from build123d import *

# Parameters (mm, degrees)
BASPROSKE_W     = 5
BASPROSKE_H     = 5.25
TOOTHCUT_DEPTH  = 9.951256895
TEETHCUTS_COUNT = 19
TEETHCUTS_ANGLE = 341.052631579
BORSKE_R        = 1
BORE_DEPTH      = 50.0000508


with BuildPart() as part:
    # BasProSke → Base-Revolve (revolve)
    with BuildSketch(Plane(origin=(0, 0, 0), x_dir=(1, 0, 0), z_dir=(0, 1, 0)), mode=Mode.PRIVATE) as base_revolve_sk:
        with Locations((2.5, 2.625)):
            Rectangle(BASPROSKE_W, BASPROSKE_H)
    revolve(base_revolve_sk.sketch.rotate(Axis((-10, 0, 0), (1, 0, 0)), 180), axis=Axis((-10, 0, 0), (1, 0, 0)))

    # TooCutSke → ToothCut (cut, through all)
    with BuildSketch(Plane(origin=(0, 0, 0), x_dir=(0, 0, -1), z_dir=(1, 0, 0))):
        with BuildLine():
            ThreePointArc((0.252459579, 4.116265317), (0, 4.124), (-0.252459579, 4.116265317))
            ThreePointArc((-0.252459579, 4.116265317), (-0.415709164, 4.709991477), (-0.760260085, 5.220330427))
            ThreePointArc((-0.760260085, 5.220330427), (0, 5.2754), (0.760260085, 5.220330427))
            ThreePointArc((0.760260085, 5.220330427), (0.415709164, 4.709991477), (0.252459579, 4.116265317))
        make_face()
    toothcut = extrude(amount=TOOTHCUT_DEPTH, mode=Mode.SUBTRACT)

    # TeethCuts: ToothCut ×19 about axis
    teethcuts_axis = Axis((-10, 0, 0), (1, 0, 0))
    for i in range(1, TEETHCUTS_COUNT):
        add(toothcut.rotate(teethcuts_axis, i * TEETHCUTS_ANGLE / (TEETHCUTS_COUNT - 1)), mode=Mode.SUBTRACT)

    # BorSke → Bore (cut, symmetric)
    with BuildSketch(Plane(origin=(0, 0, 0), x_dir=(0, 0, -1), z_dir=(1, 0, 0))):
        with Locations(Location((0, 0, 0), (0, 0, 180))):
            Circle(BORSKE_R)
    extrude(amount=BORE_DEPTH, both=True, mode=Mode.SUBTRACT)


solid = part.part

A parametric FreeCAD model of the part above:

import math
import FreeCAD as App
import Part
import Sketcher
from FreeCAD import Vector


def add_polygon(sketch, points):
    """Adds a closed chain of lines whose ends are joined by coincident constraints."""
    first, n = sketch.GeometryCount, len(points)
    for a, b in zip(points, points[1:] + points[:1]):
        sketch.addGeometry(Part.LineSegment(App.Vector(*a, 0), App.Vector(*b, 0)), False)
    for i in range(n):
        sketch.addConstraint(Sketcher.Constraint("Coincident", first + i, 2, first + (i + 1) % n, 1))

doc = App.newDocument("Part")
body = doc.addObject("PartDesign::Body", "Body")

sketch1 = doc.addObject("Sketcher::SketchObject", "Sketch")
body.addObject(sketch1)
sketch1.AttachmentSupport = (doc.XZ_Plane, [""])
sketch1.MapMode = "FlatFace"
add_polygon(sketch1, [(0, -5.25), (0, 0), (5, 0), (5, -5.25)])
sketch1.addConstraint([
    Sketcher.Constraint("Vertical", 0),
    Sketcher.Constraint("Horizontal", 1),
    Sketcher.Constraint("Vertical", 2),
    Sketcher.Constraint("Horizontal", 3),
    Sketcher.Constraint("Coincident", 0, 2, -1, 1),
    Sketcher.Constraint("DistanceX", 1, 1, 1, 2, 5.0),
    Sketcher.Constraint("DistanceY", 0, 1, 0, 2, 5.25),
])
revolution = doc.addObject("PartDesign::Revolution", "Revolution")
body.addObject(revolution)
revolution.Profile = sketch1
revolution.ReferenceAxis = (sketch1, ["H_Axis"])
revolution.Angle = 360

sketch2 = doc.addObject("Sketcher::SketchObject", "Sketch001")
body.addObject(sketch2)
sketch2.AttachmentSupport = (doc.YZ_Plane, [""])
sketch2.MapMode = "FlatFace"
sketch2.addGeometry([
    Part.ArcOfCircle(Part.Circle(Vector(0, 0, 0), Vector(0, 0, 1), 4.124), math.radians(-3.50968), math.radians(3.50968)),
    Part.ArcOfCircle(Part.Circle(Vector(3.91606, -2.141882, 0), Vector(0, 0, 1), 1.9), math.radians(46.64963), math.radians(83.951459)),
    Part.ArcOfCircle(Part.Circle(Vector(0, 0, 0), Vector(0, 0, 1), 5.2754), math.radians(-8.285988), math.radians(8.285988)),
    Part.ArcOfCircle(Part.Circle(Vector(3.91606, 2.141882, 0), Vector(0, 0, 1), 1.9), math.radians(-83.951459), math.radians(-46.64963)),
], False)
sketch2.addConstraint([
    Sketcher.Constraint("Coincident", 0, 1, 1, 2),
    Sketcher.Constraint("Coincident", 1, 1, 2, 1),
    Sketcher.Constraint("Coincident", 2, 2, 3, 2),
    Sketcher.Constraint("Coincident", 3, 1, 0, 2),
    Sketcher.Constraint("Coincident", 0, 3, -1, 1),
    Sketcher.Constraint("Coincident", 2, 3, -1, 1),
    Sketcher.Constraint("Equal", 1, 3),
    Sketcher.Constraint("Symmetric", 1, 3, 3, 3, -1),
    Sketcher.Constraint("Radius", 1, 1.9),
    Sketcher.Constraint("Radius", 0, 4.124),
    Sketcher.Constraint("Radius", 2, 5.2754),
    Sketcher.Constraint("DistanceY", 1, 1, 0, 1, 0.507801),
    Sketcher.Constraint("DistanceX", -1, 1, 1, 3, 3.91606),
])
pocket1 = doc.addObject("PartDesign::Pocket", "Pocket")
body.addObject(pocket1)
pocket1.Profile = sketch2
pocket1.Type = "ThroughAll"
pocket1.Reversed = True
doc.recompute()

polarpattern = doc.addObject("PartDesign::PolarPattern", "PolarPattern")
body.addObject(polarpattern)
polarpattern.Originals = [pocket1]
polarpattern.Axis = (doc.X_Axis, [""])
polarpattern.Angle = 360
polarpattern.Occurrences = 19
body.Tip = polarpattern

sketch3 = doc.addObject("Sketcher::SketchObject", "Sketch002")
body.addObject(sketch3)
sketch3.AttachmentSupport = (doc.YZ_Plane, [""])
sketch3.MapMode = "FlatFace"
sketch3.addGeometry(Part.Circle(Vector(0, 0, 0), Vector(0, 0, 1), 1), False)
sketch3.addConstraint([
    Sketcher.Constraint("Coincident", 0, 3, -1, 1),
    Sketcher.Constraint("Diameter", 0, 2.0),
])
pocket2 = doc.addObject("PartDesign::Pocket", "Pocket001")
body.addObject(pocket2)
pocket2.Profile = sketch3
pocket2.Length = 100.000102
pocket2.Midplane = True

doc.recompute()
